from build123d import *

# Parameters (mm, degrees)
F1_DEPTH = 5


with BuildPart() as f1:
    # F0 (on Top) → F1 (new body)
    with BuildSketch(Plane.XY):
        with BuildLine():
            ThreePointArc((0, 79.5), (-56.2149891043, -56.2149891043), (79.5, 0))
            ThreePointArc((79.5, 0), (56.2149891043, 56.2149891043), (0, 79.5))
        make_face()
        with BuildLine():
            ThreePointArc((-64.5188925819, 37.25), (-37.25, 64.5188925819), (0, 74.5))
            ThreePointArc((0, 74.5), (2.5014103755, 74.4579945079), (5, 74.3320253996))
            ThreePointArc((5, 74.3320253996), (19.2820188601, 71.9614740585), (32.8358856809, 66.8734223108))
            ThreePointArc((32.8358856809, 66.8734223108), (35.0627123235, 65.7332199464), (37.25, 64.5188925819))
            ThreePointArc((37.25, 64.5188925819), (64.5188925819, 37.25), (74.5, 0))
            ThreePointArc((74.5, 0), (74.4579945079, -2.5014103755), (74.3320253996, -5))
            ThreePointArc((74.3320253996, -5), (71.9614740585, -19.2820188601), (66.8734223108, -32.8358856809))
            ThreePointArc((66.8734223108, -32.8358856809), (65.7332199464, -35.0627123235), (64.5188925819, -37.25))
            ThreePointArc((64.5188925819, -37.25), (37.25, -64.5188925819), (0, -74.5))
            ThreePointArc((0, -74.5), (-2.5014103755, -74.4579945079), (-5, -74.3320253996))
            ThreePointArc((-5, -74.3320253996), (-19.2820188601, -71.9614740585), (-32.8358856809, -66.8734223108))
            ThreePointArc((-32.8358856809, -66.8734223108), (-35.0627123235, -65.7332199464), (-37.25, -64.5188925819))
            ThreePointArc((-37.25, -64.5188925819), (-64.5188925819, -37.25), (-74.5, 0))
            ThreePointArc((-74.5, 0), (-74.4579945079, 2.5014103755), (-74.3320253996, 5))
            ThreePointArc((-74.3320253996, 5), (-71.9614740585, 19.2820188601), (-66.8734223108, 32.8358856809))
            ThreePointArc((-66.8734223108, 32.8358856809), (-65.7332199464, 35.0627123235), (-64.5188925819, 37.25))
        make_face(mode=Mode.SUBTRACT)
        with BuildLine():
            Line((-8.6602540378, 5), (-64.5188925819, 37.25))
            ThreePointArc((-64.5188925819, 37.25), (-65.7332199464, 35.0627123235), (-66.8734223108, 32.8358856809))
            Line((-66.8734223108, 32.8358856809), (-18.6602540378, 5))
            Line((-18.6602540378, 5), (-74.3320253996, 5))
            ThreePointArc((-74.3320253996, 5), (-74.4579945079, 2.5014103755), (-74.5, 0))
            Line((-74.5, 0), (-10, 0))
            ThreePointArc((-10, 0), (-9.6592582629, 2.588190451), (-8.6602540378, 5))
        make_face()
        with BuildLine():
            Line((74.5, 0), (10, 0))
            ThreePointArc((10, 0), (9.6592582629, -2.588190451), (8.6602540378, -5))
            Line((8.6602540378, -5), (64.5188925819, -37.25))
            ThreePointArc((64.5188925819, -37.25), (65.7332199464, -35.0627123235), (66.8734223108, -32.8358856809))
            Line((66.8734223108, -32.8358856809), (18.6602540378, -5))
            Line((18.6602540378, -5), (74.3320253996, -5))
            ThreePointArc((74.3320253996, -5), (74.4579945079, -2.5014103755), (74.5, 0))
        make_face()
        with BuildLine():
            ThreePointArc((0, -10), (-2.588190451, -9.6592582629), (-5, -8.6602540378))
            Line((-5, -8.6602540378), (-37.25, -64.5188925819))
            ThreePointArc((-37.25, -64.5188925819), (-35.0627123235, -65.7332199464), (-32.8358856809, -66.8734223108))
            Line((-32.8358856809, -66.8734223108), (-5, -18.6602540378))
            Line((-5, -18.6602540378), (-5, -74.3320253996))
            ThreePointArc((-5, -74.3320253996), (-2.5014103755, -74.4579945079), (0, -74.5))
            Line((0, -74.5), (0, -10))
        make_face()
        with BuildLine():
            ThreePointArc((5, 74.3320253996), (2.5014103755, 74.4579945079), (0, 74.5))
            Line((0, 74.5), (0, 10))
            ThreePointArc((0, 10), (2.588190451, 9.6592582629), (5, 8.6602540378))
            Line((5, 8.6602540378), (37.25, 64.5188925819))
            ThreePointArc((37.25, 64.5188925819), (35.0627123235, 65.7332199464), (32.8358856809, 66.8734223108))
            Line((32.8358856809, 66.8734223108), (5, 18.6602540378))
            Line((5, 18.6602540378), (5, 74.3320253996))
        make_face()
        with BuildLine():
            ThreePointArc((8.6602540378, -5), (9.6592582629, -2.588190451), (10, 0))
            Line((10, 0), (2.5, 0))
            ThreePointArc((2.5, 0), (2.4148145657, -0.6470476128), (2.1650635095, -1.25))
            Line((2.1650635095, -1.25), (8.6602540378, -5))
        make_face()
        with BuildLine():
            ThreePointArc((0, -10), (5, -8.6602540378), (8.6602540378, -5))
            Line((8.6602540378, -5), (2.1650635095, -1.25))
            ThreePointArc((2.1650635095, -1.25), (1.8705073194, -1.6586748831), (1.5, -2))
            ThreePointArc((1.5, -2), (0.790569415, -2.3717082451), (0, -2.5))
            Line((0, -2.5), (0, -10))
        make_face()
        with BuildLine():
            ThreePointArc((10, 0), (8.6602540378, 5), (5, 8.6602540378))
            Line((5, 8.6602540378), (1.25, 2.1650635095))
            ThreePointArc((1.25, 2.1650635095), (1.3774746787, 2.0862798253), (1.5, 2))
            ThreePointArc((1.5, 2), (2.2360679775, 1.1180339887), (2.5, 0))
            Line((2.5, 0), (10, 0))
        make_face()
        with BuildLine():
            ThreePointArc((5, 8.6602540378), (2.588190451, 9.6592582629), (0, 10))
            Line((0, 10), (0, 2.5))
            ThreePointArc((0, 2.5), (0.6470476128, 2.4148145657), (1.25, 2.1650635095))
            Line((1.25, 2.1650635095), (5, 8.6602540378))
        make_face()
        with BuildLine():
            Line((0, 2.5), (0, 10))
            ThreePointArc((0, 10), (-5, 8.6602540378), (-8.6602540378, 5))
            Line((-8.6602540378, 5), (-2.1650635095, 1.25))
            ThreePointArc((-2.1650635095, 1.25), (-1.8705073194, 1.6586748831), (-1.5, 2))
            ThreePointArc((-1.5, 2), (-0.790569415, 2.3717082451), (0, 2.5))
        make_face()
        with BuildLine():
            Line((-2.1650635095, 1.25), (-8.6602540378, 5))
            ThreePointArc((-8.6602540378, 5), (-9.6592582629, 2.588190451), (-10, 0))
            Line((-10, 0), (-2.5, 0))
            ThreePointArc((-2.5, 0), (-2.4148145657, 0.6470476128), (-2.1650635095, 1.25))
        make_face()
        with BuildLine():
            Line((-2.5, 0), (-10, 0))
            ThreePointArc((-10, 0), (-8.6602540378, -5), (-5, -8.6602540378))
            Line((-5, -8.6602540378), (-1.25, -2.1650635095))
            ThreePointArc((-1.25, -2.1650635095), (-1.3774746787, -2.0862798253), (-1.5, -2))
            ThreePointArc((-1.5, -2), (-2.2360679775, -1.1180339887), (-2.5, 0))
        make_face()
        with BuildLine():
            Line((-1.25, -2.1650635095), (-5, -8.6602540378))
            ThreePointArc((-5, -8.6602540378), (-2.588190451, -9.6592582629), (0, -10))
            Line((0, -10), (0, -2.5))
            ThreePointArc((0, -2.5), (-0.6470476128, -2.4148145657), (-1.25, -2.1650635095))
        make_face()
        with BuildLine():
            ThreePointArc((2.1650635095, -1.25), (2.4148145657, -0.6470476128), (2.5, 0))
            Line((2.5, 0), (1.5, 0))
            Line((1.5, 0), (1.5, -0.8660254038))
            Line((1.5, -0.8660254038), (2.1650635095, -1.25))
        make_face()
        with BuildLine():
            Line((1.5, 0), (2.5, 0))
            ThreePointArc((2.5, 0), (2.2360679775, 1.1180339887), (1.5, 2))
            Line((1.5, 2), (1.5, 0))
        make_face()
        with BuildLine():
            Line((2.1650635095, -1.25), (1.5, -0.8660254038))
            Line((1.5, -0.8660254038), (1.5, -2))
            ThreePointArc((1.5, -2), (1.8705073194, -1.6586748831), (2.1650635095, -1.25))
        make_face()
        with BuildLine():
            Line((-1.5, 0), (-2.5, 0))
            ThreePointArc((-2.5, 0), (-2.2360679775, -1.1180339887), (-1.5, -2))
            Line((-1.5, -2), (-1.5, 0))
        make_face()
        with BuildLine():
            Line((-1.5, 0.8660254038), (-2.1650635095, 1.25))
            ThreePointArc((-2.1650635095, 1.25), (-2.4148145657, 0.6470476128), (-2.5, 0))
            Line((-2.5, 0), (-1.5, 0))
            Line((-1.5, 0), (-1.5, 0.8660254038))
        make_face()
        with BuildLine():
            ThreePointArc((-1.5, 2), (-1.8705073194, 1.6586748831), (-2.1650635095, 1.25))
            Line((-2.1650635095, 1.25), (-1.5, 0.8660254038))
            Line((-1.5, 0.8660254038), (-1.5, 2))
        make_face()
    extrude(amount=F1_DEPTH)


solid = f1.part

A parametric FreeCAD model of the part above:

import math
import FreeCAD as App
import Part
import Sketcher

V = App.Vector
Q = App.Units.Quantity

doc = App.newDocument("Part")
params = doc.addObject("Spreadsheet::Sheet", "Params")
for row, (alias, value) in enumerate([
    ("sketch1_radius", "10 mm"),
    ("sketch1_radius2", "79.5 mm"),
    ("sketch1_radius3", "74.5 mm"),
    ("sketch1_radius4", "2.5 mm"),
    ("sketch1_height", "4 mm"),
    ("pad1_length", "5 mm"),
], start=1):
    params.set(f"A{row}", alias)
    params.set(f"B{row}", "=" + value)
    params.setAlias(f"B{row}", alias)

body = doc.addObject("PartDesign::Body", "Body")

sketch1 = body.newObject("Sketcher::SketchObject", "Sketch")
sketch1.AttachmentSupport = (doc.getObject("XY_Plane"), [""])
sketch1.MapMode = "FlatFace"
sketch1.addGeometry([
    Part.ArcOfCircle(Part.Circle(V(0, 0, 0), V(0, 0, 1), 79.5), math.radians(90), math.radians(360)),
    Part.ArcOfCircle(Part.Circle(V(0, 0, 0), V(0, 0, 1), 79.5), math.radians(0), math.radians(90)),
    Part.ArcOfCircle(Part.Circle(V(0, 0, 0), V(0, 0, 1), 74.5), math.radians(-116), math.radians(-94)),
    Part.LineSegment(V(-32.84, -66.87, 0), V(-5, -18.66, 0)),
    Part.LineSegment(V(-5, -18.66, 0), V(-5, -74.33, 0)),
    Part.ArcOfCircle(Part.Circle(V(0, 0, 0), V(0, 0, 1), 10), math.radians(180), math.radians(240)),
    Part.LineSegment(V(-5, -8.66, 0), V(-37.25, -64.52, 0)),
    Part.ArcOfCircle(Part.Circle(V(0, 0, 0), V(0, 0, 1), 74.5), math.radians(180), math.radians(240)),
    Part.LineSegment(V(-74.5, 0, 0), V(-10, 0, 0)),
    Part.ArcOfCircle(Part.Circle(V(0, 0, 0), V(0, 0, 1), 2.5), math.radians(-90), math.radians(-53)),
    Part.ArcOfCircle(Part.Circle(V(0, 0, 0), V(0, 0, 1), 2.5), math.radians(-120), math.radians(-90)),
    Part.ArcOfCircle(Part.Circle(V(0, 0, 0), V(0, 0, 1), 2.5), math.radians(-126.87), math.radians(-120)),
    Part.LineSegment(V(-1.5, -2, 0), V(-1.5, 2, 0)),
    Part.ArcOfCircle(Part.Circle(V(0, 0, 0), V(0, 0, 1), 2.5), math.radians(90), math.radians(127)),
    Part.ArcOfCircle(Part.Circle(V(0, 0, 0), V(0, 0, 1), 2.5), math.radians(60), math.radians(90)),
    Part.ArcOfCircle(Part.Circle(V(0, 0, 0), V(0, 0, 1), 2.5), math.radians(53.13), math.radians(60)),
    Part.LineSegment(V(1.5, 2, 0), V(1.5, -2, 0)),
    Part.LineSegment(V(0, -74.5, 0), V(0, -10, 0)),
    Part.ArcOfCircle(Part.Circle(V(0, 0, 0), V(0, 0, 1), 10), math.radians(-90), math.radians(-30)),
    Part.LineSegment(V(8.66, -5, 0), V(64.52, -37.25, 0)),
    Part.ArcOfCircle(Part.Circle(V(0, 0, 0), V(0, 0, 1), 74.5), math.radians(-90), math.radians(-30)),
    Part.ArcOfCircle(Part.Circle(V(0, 0, 0), V(0, 0, 1), 74.5), math.radians(-26), math.radians(-4)),
    Part.LineSegment(V(66.87, -32.84, 0), V(18.66, -5, 0)),
    Part.LineSegment(V(18.66, -5, 0), V(74.33, -5, 0)),
    Part.ArcOfCircle(Part.Circle(V(0, 0, 0), V(0, 0, 1), 74.5), math.radians(154), math.radians(176)),
    Part.LineSegment(V(-66.87, 32.84, 0), V(-18.66, 5, 0)),
    Part.LineSegment(V(-18.66, 5, 0), V(-74.33, 5, 0)),
    Part.ArcOfCircle(Part.Circle(V(0, 0, 0), V(0, 0, 1), 10), math.radians(90), math.radians(150)),
    Part.LineSegment(V(-8.66, 5, 0), V(-64.52, 37.25, 0)),
    Part.ArcOfCircle(Part.Circle(V(0, 0, 0), V(0, 0, 1), 74.5), math.radians(90), math.radians(150)),
    Part.LineSegment(V(0, 74.5, 0), V(0, 10, 0)),
    Part.ArcOfCircle(Part.Circle(V(0, 0, 0), V(0, 0, 1), 10), math.radians(0), math.radians(60)),
    Part.LineSegment(V(5, 8.66, 0), V(37.25, 64.52, 0)),
    Part.ArcOfCircle(Part.Circle(V(0, 0, 0), V(0, 0, 1), 74.5), math.radians(0), math.radians(60)),
    Part.LineSegment(V(74.5, 0, 0), V(10, 0, 0)),
    Part.ArcOfCircle(Part.Circle(V(0, 0, 0), V(0, 0, 1), 74.5), math.radians(64), math.radians(86)),
    Part.LineSegment(V(32.84, 66.87, 0), V(5, 18.66, 0)),
    Part.LineSegment(V(5, 18.66, 0), V(5, 74.33, 0)),
], False)
sketch1.addConstraint([
    Sketcher.Constraint("Tangent", 0, 1, 1, 2),
    Sketcher.Constraint("Coincident", 1, 1, 0, 2),
    Sketcher.Constraint("Coincident", 2, 1, 3, 1),
    Sketcher.Constraint("Coincident", 3, 2, 4, 1),
    Sketcher.Constraint("Coincident", 4, 2, 2, 2),
    Sketcher.Constraint("Coincident", 5, 2, 6, 1),
    Sketcher.Constraint("Coincident", 6, 2, 7, 2),
    Sketcher.Constraint("Coincident", 7, 1, 8, 1),
    Sketcher.Constraint("Coincident", 8, 2, 5, 1),
    Sketcher.Constraint("Tangent", 9, 1, 10, 2),
    Sketcher.Constraint("Tangent", 10, 1, 11, 2),
    Sketcher.Constraint("Coincident", 11, 1, 12, 1),
    Sketcher.Constraint("Coincident", 12, 2, 13, 2),
    Sketcher.Constraint("Tangent", 13, 1, 14, 2),
    Sketcher.Constraint("Tangent", 14, 1, 15, 2),
    Sketcher.Constraint("Coincident", 15, 1, 16, 1),
    Sketcher.Constraint("Coincident", 16, 2, 9, 2),
    Sketcher.Constraint("Coincident", 17, 2, 18, 1),
    Sketcher.Constraint("Coincident", 18, 2, 19, 1),
    Sketcher.Constraint("Coincident", 19, 2, 20, 2),
    Sketcher.Constraint("Coincident", 20, 1, 17, 1),
    Sketcher.Constraint("Coincident", 21, 1, 22, 1),
    Sketcher.Constraint("Coincident", 22, 2, 23, 1),
    Sketcher.Constraint("Coincident", 23, 2, 21, 2),
    Sketcher.Constraint("Coincident", 24, 1, 25, 1),
    Sketcher.Constraint("Coincident", 25, 2, 26, 1),
    Sketcher.Constraint("Coincident", 26, 2, 24, 2),
    Sketcher.Constraint("Coincident", 27, 2, 28, 1),
    Sketcher.Constraint("Coincident", 28, 2, 29, 2),
    Sketcher.Constraint("Coincident", 29, 1, 30, 1),
    Sketcher.Constraint("Coincident", 30, 2, 27, 1),
    Sketcher.Constraint("Coincident", 31, 2, 32, 1),
    Sketcher.Constraint("Coincident", 32, 2, 33, 2),
    Sketcher.Constraint("Coincident", 33, 1, 34, 1),
    Sketcher.Constraint("Coincident", 34, 2, 31, 1),
    Sketcher.Constraint("Coincident", 35, 1, 36, 1),
    Sketcher.Constraint("Coincident", 36, 2, 37, 1),
    Sketcher.Constraint("Coincident", 37, 2, 35, 2),
    Sketcher.Constraint("Vertical", 4),
    Sketcher.Constraint("Horizontal", 8),
    Sketcher.Constraint("Vertical", 12),
    Sketcher.Constraint("Vertical", 16),
    Sketcher.Constraint("Vertical", 17),
    Sketcher.Constraint("Horizontal", 23),
    Sketcher.Constraint("Horizontal", 26),
    Sketcher.Constraint("Vertical", 30),
    Sketcher.Constraint("Horizontal", 34),
    Sketcher.Constraint("Vertical", 37),
    Sketcher.Constraint("Coincident", 0, 3, -1, 1),
    Sketcher.Constraint("Coincident", 2, 3, -1, 1),
    Sketcher.Constraint("Coincident", 5, 3, -1, 1),
    Sketcher.Constraint("Coincident", 7, 3, -1, 1),
    Sketcher.Constraint("Coincident", 9, 3, -1, 1),
    Sketcher.Constraint("Coincident", 11, 3, -1, 1),
    Sketcher.Constraint("Coincident", 13, 3, -1, 1),
    Sketcher.Constraint("Coincident", 15, 3, -1, 1),
    Sketcher.Constraint("Coincident", 18, 3, -1, 1),
    Sketcher.Constraint("Coincident", 20, 3, -1, 1),
    Sketcher.Constraint("Coincident", 21, 3, -1, 1),
    Sketcher.Constraint("Coincident", 24, 3, -1, 1),
    Sketcher.Constraint("Coincident", 27, 3, -1, 1),
    Sketcher.Constraint("Coincident", 29, 3, -1, 1),
    Sketcher.Constraint("Coincident", 31, 3, -1, 1),
    Sketcher.Constraint("Coincident", 33, 3, -1, 1),
    Sketcher.Constraint("Coincident", 35, 3, -1, 1),
    Sketcher.Constraint("Equal", 2, 7),
    Sketcher.Constraint("Equal", 11, 13),
    Sketcher.Constraint("Equal", 5, 18),
    Sketcher.Constraint("Equal", 7, 20),
    Sketcher.Constraint("Equal", 20, 21),
    Sketcher.Constraint("Equal", 21, 24),
    Sketcher.Constraint("Equal", 18, 27),
    Sketcher.Constraint("Equal", 24, 29),
    Sketcher.Constraint("Equal", 27, 31),
    Sketcher.Constraint("Equal", 29, 33),
    Sketcher.Constraint("Equal", 33, 35),
    Sketcher.Constraint("Symmetric", 22, 2, 25, 2, -1, 1),
    Sketcher.Constraint("Symmetric", 3, 2, 36, 2, -1, 1),
    Sketcher.Constraint("PointOnObject", 0, 1, -2),
    Sketcher.Constraint("PointOnObject", 1, 1, -1),
    Sketcher.Constraint("PointOnObject", 7, 1, -1),
    Sketcher.Constraint("PointOnObject", 9, 1, -2),
    Sketcher.Constraint("PointOnObject", 13, 1, -2),
    Sketcher.Constraint("PointOnObject", 17, 2, -2),
    Sketcher.Constraint("PointOnObject", 29, 1, -2),
    Sketcher.Constraint("PointOnObject", 33, 1, -1),
    Sketcher.Constraint("Parallel", 3, 6),
    Sketcher.Constraint("Perpendicular", 6, 19),
    Sketcher.Constraint("Parallel", 19, 22),
    Sketcher.Constraint("Parallel", 22, 25),
    Sketcher.Constraint("Parallel", 25, 28),
    Sketcher.Constraint("Perpendicular", 28, 32),
    Sketcher.Constraint("Parallel", 32, 36),
    Sketcher.Constraint("Horizontal", 12, 2, 15, 1),
    Sketcher.Constraint("Horizontal", 18, 2, 22, 2),
    Sketcher.Constraint("Horizontal", 26, 2, 27, 2),
    Sketcher.Constraint("Vertical", 4, 2, 5, 2),
    Sketcher.Constraint("Vertical", 31, 2, 36, 2),
    Sketcher.Constraint("Equal", 26, 4),
    Sketcher.Constraint("Equal", 3, 22),
    Sketcher.Constraint("Radius", 5, 10.0),
    Sketcher.Constraint("Radius", 0, 79.5),
    Sketcher.Constraint("Radius", 2, 74.5),
    Sketcher.Constraint("Radius", 9, 2.5),
    Sketcher.Constraint("DistanceY", 12, 1, 12, 2, 4.0),
    Sketcher.Constraint("Angle", 3, Q("60 deg")),
    Sketcher.Constraint("DistanceX", 3, 2, -1, 1, 5.0),
    Sketcher.Constraint("DistanceX", 18, 2, 22, 2, 10.0),
    Sketcher.Constraint("DistanceX", 10, 1, -1, 1, 1.25),
    Sketcher.Constraint("DistanceX", -1, 1, 14, 1, 1.25),
])
sketch1.setExpression("Constraints[100]", "Params.sketch1_radius")
sketch1.setExpression("Constraints[101]", "Params.sketch1_radius2")
sketch1.setExpression("Constraints[102]", "Params.sketch1_radius3")
sketch1.setExpression("Constraints[103]", "Params.sketch1_radius4")
sketch1.setExpression("Constraints[104]", "Params.sketch1_height")
pad1 = body.newObject("PartDesign::Pad", "Pad")
pad1.Profile = sketch1
pad1.setExpression("Length", "Params.pad1_length")

doc.recompute()
